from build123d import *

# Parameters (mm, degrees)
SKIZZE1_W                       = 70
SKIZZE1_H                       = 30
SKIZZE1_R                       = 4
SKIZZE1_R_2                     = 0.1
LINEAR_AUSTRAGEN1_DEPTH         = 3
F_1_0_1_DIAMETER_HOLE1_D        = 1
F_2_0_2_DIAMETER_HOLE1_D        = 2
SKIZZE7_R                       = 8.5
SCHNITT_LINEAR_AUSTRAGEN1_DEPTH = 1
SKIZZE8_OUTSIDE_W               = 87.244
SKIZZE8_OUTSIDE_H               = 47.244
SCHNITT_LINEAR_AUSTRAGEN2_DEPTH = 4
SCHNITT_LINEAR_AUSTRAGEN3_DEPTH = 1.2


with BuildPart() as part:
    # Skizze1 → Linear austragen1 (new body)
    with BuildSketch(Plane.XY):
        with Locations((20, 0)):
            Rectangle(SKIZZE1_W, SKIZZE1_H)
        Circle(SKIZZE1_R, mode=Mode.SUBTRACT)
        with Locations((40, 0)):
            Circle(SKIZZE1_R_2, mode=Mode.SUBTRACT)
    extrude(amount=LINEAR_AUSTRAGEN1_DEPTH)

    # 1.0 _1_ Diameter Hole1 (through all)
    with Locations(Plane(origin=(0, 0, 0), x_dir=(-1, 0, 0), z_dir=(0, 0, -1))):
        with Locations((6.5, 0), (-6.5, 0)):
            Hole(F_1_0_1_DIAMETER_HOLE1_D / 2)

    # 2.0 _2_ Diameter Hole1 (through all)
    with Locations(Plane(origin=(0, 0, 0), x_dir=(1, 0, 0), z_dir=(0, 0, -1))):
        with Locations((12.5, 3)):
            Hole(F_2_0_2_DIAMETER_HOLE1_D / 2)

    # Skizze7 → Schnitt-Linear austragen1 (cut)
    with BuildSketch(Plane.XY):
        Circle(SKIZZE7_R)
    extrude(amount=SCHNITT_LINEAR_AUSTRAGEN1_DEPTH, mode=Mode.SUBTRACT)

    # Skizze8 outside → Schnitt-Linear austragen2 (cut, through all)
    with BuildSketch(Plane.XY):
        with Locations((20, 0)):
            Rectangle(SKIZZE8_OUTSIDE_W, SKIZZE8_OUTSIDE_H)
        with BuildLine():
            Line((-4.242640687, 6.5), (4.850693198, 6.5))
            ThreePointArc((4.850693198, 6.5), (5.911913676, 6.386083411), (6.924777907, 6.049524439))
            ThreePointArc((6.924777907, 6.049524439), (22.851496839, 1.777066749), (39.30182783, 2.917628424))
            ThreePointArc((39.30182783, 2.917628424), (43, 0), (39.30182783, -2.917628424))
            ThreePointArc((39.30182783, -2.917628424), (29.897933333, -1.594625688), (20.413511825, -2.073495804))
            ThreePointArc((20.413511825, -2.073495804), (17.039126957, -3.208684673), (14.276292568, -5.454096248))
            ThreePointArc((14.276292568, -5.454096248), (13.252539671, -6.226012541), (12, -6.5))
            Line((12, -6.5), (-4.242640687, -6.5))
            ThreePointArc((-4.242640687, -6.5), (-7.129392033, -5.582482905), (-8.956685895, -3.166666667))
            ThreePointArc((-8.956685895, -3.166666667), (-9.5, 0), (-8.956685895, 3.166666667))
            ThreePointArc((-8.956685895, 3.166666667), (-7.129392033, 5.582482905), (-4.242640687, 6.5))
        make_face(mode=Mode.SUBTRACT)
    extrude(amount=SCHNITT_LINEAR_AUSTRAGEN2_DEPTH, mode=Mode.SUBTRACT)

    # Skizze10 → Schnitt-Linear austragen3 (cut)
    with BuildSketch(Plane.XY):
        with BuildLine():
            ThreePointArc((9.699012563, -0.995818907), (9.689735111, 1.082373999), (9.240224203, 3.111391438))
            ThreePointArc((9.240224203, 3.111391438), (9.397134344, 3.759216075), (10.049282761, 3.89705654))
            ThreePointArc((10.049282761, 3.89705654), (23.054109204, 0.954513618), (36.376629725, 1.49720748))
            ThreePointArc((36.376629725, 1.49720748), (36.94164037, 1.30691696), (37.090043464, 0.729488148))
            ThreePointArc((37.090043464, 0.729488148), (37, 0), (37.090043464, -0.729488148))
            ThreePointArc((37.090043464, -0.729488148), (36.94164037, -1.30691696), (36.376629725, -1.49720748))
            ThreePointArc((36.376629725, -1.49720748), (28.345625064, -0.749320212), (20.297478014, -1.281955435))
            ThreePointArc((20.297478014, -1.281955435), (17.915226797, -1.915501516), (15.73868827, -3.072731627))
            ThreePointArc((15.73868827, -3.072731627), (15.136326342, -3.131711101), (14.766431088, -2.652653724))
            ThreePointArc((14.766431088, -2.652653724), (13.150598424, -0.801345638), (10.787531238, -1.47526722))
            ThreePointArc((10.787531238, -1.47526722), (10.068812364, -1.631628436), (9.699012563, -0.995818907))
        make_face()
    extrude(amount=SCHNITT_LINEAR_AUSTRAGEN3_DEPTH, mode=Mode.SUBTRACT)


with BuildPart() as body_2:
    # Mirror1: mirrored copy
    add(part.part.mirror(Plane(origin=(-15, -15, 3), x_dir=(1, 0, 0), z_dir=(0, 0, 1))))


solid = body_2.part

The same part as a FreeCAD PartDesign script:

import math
import FreeCAD as App
import Part
import Sketcher
from FreeCAD import Vector

doc = App.newDocument("Part")
params = doc.addObject("Spreadsheet::Sheet", "Params")
for row, (alias, value) in enumerate([
    ("sketch1_diameter", "8 mm"),
    ("sketch1_diameter2", "0.2 mm"),
    ("sketch1_width", "70 mm"),
    ("sketch1_height", "30 mm"),
    ("pad1_length", "3 mm"),
    ("sketch2_diameter", "1 mm"),
    ("hole_diameter", "1 mm"),
    ("sketch3_diameter", "2 mm"),
    ("hole2_diameter", "2 mm"),
    ("sketch4_diameter", "17 mm"),
    ("pocket1_length", "1 mm"),
    ("sketch5_radius", "5 mm"),
    ("sketch5_radius2", "50 mm"),
    ("sketch5_radius3", "3 mm"),
    ("sketch5_radius4", "10 mm"),
    ("sketch5_radius5", "9.5 mm"),
    ("sketch6_radius", "3 mm"),
    ("sketch6_radius2", "10.8 mm"),
    ("sketch6_radius3", "50.8 mm"),
    ("sketch6_radius4", "50.8 mm"),
    ("sketch6_radius5", "9.75 mm"),
    ("pocket3_length", "1.2 mm"),
], start=1):
    params.set(f"A{row}", alias)
    params.set(f"B{row}", "=" + value)
    params.setAlias(f"B{row}", alias)

body = doc.addObject("PartDesign::Body", "Body")

sketch1 = body.newObject("Sketcher::SketchObject", "Sketch")
sketch1.AttachmentSupport = (doc.getObject("XY_Plane"), [""])
sketch1.MapMode = "FlatFace"
sketch1.addGeometry([
    Part.LineSegment(Vector(-15, 15, 0), Vector(-15, -15, 0)),
    Part.LineSegment(Vector(-15, -15, 0), Vector(55, -15, 0)),
    Part.LineSegment(Vector(55, -15, 0), Vector(55, 15, 0)),
    Part.LineSegment(Vector(55, 15, 0), Vector(-15, 15, 0)),
    Part.Circle(Vector(0, 0, 0), Vector(0, 0, 1), 4),
    Part.Circle(Vector(40, 0, 0), Vector(0, 0, 1), 0.1),
], False)
sketch1.addConstraint([
    Sketcher.Constraint("Coincident", 0, 2, 1, 1),
    Sketcher.Constraint("Coincident", 1, 2, 2, 1),
    Sketcher.Constraint("Coincident", 2, 2, 3, 1),
    Sketcher.Constraint("Coincident", 3, 2, 0, 1),
    Sketcher.Constraint("Vertical", 0),
    Sketcher.Constraint("Horizontal", 1),
    Sketcher.Constraint("Vertical", 2),
    Sketcher.Constraint("Horizontal", 3),
    Sketcher.Constraint("Coincident", 4, 3, -1, 1),
    Sketcher.Constraint("PointOnObject", 5, 3, -1),
    Sketcher.Constraint("Diameter", 4, 8.0),
    Sketcher.Constraint("Diameter", 5, 0.2),
    Sketcher.Constraint("DistanceX", 1, 1, 1, 2, 70.0),
    Sketcher.Constraint("DistanceY", 0, 2, 0, 1, 30.0),
    Sketcher.Constraint("DistanceX", -1, 1, 5, 3, 40.0),
    Sketcher.Constraint("DistanceX", 0, 2, -1, 1, 15.0),
    Sketcher.Constraint("DistanceY", 0, 2, -1, 1, 15.0),
])
sketch1.setExpression("Constraints[10]", "Params.sketch1_diameter")
sketch1.setExpression("Constraints[11]", "Params.sketch1_diameter2")
sketch1.setExpression("Constraints[12]", "Params.sketch1_width")
sketch1.setExpression("Constraints[13]", "Params.sketch1_height")
pad1 = body.newObject("PartDesign::Pad", "Pad")
pad1.Profile = sketch1
pad1.setExpression("Length", "Params.pad1_length")

sketch2 = body.newObject("Sketcher::SketchObject", "Sketch001")
sketch2.AttachmentSupport = (doc.getObject("XY_Plane"), [""])
sketch2.MapMode = "FlatFace"
sketch2.addGeometry([
    Part.Circle(Vector(-6.5, 0, 0), Vector(0, 0, 1), 0.5),
    Part.Circle(Vector(6.5, 0, 0), Vector(0, 0, 1), 0.5),
], False)
sketch2.addConstraint([
    Sketcher.Constraint("Equal", 0, 1),
    Sketcher.Constraint("Symmetric", 0, 3, 1, 3, -1, 1),
    Sketcher.Constraint("PointOnObject", 0, 3, -1),
    Sketcher.Constraint("Diameter", 0, 1.0),
    Sketcher.Constraint("DistanceX", 0, 3, 1, 3, 13.0),
])
sketch2.setExpression("Constraints[3]", "Params.sketch2_diameter")
doc.recompute()
hole = body.newObject("PartDesign::Hole", "Hole")
hole.Profile = sketch2
hole.ThreadType = "None"
hole.setExpression("Diameter", "Params.hole_diameter")
hole.DepthType = "ThroughAll"
hole.Reversed = True

sketch3 = body.newObject("Sketcher::SketchObject", "Sketch002")
sketch3.AttachmentSupport = (doc.getObject("XY_Plane"), [""])
sketch3.MapMode = "FlatFace"
sketch3.addGeometry(Part.Circle(Vector(12.5, -3, 0), Vector(0, 0, 1), 1), False)
sketch3.addConstraint([
    Sketcher.Constraint("Diameter", 0, 2.0),
    Sketcher.Constraint("DistanceY", 0, 3, -1, 1, 3.0),
    Sketcher.Constraint("DistanceX", -1, 1, 0, 3, 12.5),
])
sketch3.setExpression("Constraints[0]", "Params.sketch3_diameter")
doc.recompute()
hole2 = body.newObject("PartDesign::Hole", "Hole001")
hole2.Profile = sketch3
hole2.ThreadType = "None"
hole2.setExpression("Diameter", "Params.hole2_diameter")
hole2.DepthType = "ThroughAll"
hole2.Reversed = True

sketch4 = body.newObject("Sketcher::SketchObject", "Sketch003")
sketch4.AttachmentSupport = (doc.getObject("XY_Plane"), [""])
sketch4.MapMode = "FlatFace"
sketch4.addGeometry(Part.Circle(Vector(0, 0, 0), Vector(0, 0, 1), 8), False)
sketch4.addConstraint([
    Sketcher.Constraint("Coincident", 0, 3, -1, 1),
    Sketcher.Constraint("Diameter", 0, 17.0),
])
sketch4.setExpression("Constraints[1]", "Params.sketch4_diameter")
pocket1 = body.newObject("PartDesign::Pocket", "Pocket")
pocket1.Profile = sketch4
pocket1.setExpression("Length", "Params.pocket1_length")
pocket1.Reversed = True

sketch5 = body.newObject("Sketcher::SketchObject", "Sketch004")
sketch5.AttachmentSupport = (doc.getObject("XY_Plane"), [""])
sketch5.MapMode = "FlatFace"
sketch5.addGeometry([
    Part.LineSegment(Vector(-23.6, 23.6, 0), Vector(-23.6, -23.6, 0)),
    Part.LineSegment(Vector(-23.6, -23.6, 0), Vector(63.6, -23.6, 0)),
    Part.LineSegment(Vector(63.6, -23.6, 0), Vector(63.6, 23.6, 0)),
    Part.LineSegment(Vector(63.6, 23.6, 0), Vector(-23.6, 23.6, 0)),
    Part.ArcOfCircle(Part.Circle(Vector(-4.2, 1.5, 0), Vector(0, 0, 1), 5), math.radians(90), math.radians(161)),
    Part.LineSegment(Vector(-4.2, 6.5, 0), Vector(4.9, 6.5, 0)),
    Part.ArcOfCircle(Part.Circle(Vector(4.9, 1.5, 0), Vector(0, 0, 1), 5), math.radians(65), math.radians(90)),
    Part.ArcOfCircle(Part.Circle(Vector(27.7, 51.5, 0), Vector(0, 0, 1), 50), math.radians(-115), math.radians(-77)),
    Part.ArcOfCircle(Part.Circle(Vector(40, 0, 0), Vector(0, 0, 1), 3), math.radians(-103), math.radians(103)),
    Part.ArcOfCircle(Part.Circle(Vector(27.7, -51.5, 0), Vector(0, 0, 1), 50), math.radians(77), math.radians(98)),
    Part.ArcOfCircle(Part.Circle(Vector(21.9, -12, 0), Vector(0, 0, 1), 10), math.radians(98), math.radians(139)),
    Part.ArcOfCircle(Part.Circle(Vector(12, -3.5, 0), Vector(0, 0, 1), 3), math.radians(-90), math.radians(-41)),
    Part.LineSegment(Vector(12, -6.5, 0), Vector(-4.2, -6.5, 0)),
    Part.ArcOfCircle(Part.Circle(Vector(-4.2, -1.5, 0), Vector(0, 0, 1), 5), math.radians(-161), math.radians(-90)),
    Part.ArcOfCircle(Part.Circle(Vector(0, 0, 0), Vector(0, 0, 1), 9.5), math.radians(161), math.radians(199)),
], False)
sketch5.addConstraint([
    Sketcher.Constraint("Coincident", 0, 2, 1, 1),
    Sketcher.Constraint("Coincident", 1, 2, 2, 1),
    Sketcher.Constraint("Coincident", 2, 2, 3, 1),
    Sketcher.Constraint("Coincident", 3, 2, 0, 1),
    Sketcher.Constraint("Tangent", 4, 1, 5, 1),
    Sketcher.Constraint("Tangent", 5, 2, 6, 2),
    Sketcher.Constraint("Tangent", 6, 1, 7, 1),
    Sketcher.Constraint("Tangent", 7, 2, 8, 2),
    Sketcher.Constraint("Tangent", 8, 1, 9, 1),
    Sketcher.Constraint("Tangent", 9, 2, 10, 1),
    Sketcher.Constraint("Tangent", 10, 2, 11, 2),
    Sketcher.Constraint("Tangent", 11, 1, 12, 1),
    Sketcher.Constraint("Tangent", 12, 2, 13, 2),
    Sketcher.Constraint("Tangent", 13, 1, 14, 2),
    Sketcher.Constraint("Tangent", 14, 1, 4, 2),
    Sketcher.Constraint("Vertical", 0),
    Sketcher.Constraint("Horizontal", 1),
    Sketcher.Constraint("Vertical", 2),
    Sketcher.Constraint("Horizontal", 3),
    Sketcher.Constraint("Horizontal", 5),
    Sketcher.Constraint("Horizontal", 12),
    Sketcher.Constraint("Coincident", 14, 3, -1, 1),
    Sketcher.Constraint("Equal", 4, 6),
    Sketcher.Constraint("Equal", 7, 9),
    Sketcher.Constraint("Equal", 8, 11),
    Sketcher.Constraint("Equal", 6, 13),
    Sketcher.Constraint("Symmetric", 7, 3, 9, 3, -1),
    Sketcher.Constraint("Vertical", 4, 3, 13, 3),
    Sketcher.Constraint("Radius", 4, 5.0),
    Sketcher.Constraint("Radius", 7, 50.0),
    Sketcher.Constraint("Radius", 8, 3.0),
    Sketcher.Constraint("Radius", 10, 10.0),
    Sketcher.Constraint("Radius", 14, 9.5),
    Sketcher.Constraint("DistanceX", -1, 1, 8, 3, 40.0),
    Sketcher.Constraint("DistanceX", -1, 1, 11, 3, 12.0),
    Sketcher.Constraint("DistanceY", 11, 3, 6, 3, 5.0),
    Sketcher.Constraint("DistanceX", 1, 1, 1, 2, 87.244),
    Sketcher.Constraint("DistanceY", 0, 2, 0, 1, 47.244),
    Sketcher.Constraint("DistanceX", 0, 2, -1, 1, 23.622),
    Sketcher.Constraint("DistanceY", 0, 2, -1, 1, 23.622),
    Sketcher.Constraint("DistanceY", 10, 2, 9, 2, 3.3806),
])
sketch5.setExpression("Constraints[28]", "Params.sketch5_radius")
sketch5.setExpression("Constraints[29]", "Params.sketch5_radius2")
sketch5.setExpression("Constraints[30]", "Params.sketch5_radius3")
sketch5.setExpression("Constraints[31]", "Params.sketch5_radius4")
sketch5.setExpression("Constraints[32]", "Params.sketch5_radius5")
pocket2 = body.newObject("PartDesign::Pocket", "Pocket001")
pocket2.Profile = sketch5
pocket2.Type = "ThroughAll"
pocket2.Reversed = True

sketch6 = body.newObject("Sketcher::SketchObject", "Sketch005")
sketch6.AttachmentSupport = (doc.getObject("XY_Plane"), [""])
sketch6.MapMode = "FlatFace"
sketch6.addGeometry([
    Part.ArcOfCircle(Part.Circle(Vector(0, 0, 0), Vector(0, 0, 1), 9.75), math.radians(-5.862142), math.radians(18.609537)),
    Part.ArcOfCircle(Part.Circle(Vector(10.320744, -1.059653, 0), Vector(0, 0, 1), 0.625), math.radians(174.137858), math.radians(318.319053)),
    Part.ArcOfCircle(Part.Circle(Vector(12.5, -3, 0), Vector(0, 0, 1), 2.292893), math.radians(8.71318), math.radians(138.319053)),
    Part.ArcOfCircle(Part.Circle(Vector(15.384218, -2.557974, 0), Vector(0, 0, 1), 0.625), math.radians(-171.28682), math.radians(-55.448106)),
    Part.ArcOfCircle(Part.Circle(Vector(21.863934, -11.96775, 0), Vector(0, 0, 1), 10.8), math.radians(98.339727), math.radians(124.551893)),
    Part.ArcOfCircle(Part.Circle(Vector(27.665625, -51.544769, 0), Vector(0, 0, 1), 50.8), math.radians(80.126325), math.radians(98.339727)),
    Part.ArcOfCircle(Part.Circle(Vector(36.483803, -0.881465, 0), Vector(0, 0, 1), 0.625), math.radians(-99.873675), math.radians(14.073282)),
    Part.ArcOfCircle(Part.Circle(Vector(40, 0, 0), Vector(0, 0, 1), 3), math.radians(165.926718), math.radians(194.073282)),
    Part.ArcOfCircle(Part.Circle(Vector(36.483803, 0.881465, 0), Vector(0, 0, 1), 0.625), math.radians(-14.073282), math.radians(99.873675)),
    Part.ArcOfCircle(Part.Circle(Vector(27.665625, 51.544769, 0), Vector(0, 0, 1), 50.8), math.radians(-110.290393), math.radians(-80.126325)),
    Part.ArcOfCircle(Part.Circle(Vector(9.832546, 3.31084, 0), Vector(0, 0, 1), 0.625), math.radians(69.709607), math.radians(198.609537)),
], False)
sketch6.addConstraint([
    Sketcher.Constraint("Coincident", 0, 1, 1, 1),
    Sketcher.Constraint("Coincident", 1, 2, 2, 2),
    Sketcher.Constraint("Coincident", 2, 1, 3, 1),
    Sketcher.Constraint("Coincident", 3, 2, 4, 2),
    Sketcher.Constraint("Coincident", 4, 1, 5, 2),
    Sketcher.Constraint("Coincident", 5, 1, 6, 1),
    Sketcher.Constraint("Coincident", 6, 2, 7, 2),
    Sketcher.Constraint("Coincident", 7, 1, 8, 1),
    Sketcher.Constraint("Coincident", 8, 2, 9, 2),
    Sketcher.Constraint("Coincident", 9, 1, 10, 1),
    Sketcher.Constraint("Coincident", 10, 2, 0, 2),
    Sketcher.Constraint("Coincident", 0, 3, -1, 1),
    Sketcher.Constraint("PointOnObject", 7, 3, -1),
    Sketcher.Constraint("Radius", 7, 3.0),
    Sketcher.Constraint("Radius", 4, 10.8),
    Sketcher.Constraint("Radius", 5, 50.8),
    Sketcher.Constraint("Radius", 9, 50.8),
    Sketcher.Constraint("Radius", 0, 9.75),
    Sketcher.Constraint("DistanceY", 2, 3, -1, 1, 3.0),
    Sketcher.Constraint("DistanceX", -1, 1, 7, 3, 40.0),
    Sketcher.Constraint("Radius", 1, 0.625),
    Sketcher.Constraint("Radius", 3, 0.625),
    Sketcher.Constraint("Radius", 6, 0.625),
    Sketcher.Constraint("Radius", 8, 0.625),
    Sketcher.Constraint("Radius", 10, 0.625),
    Sketcher.Constraint("DistanceX", -1, 1, 2, 3, 12.5),
    Sketcher.Constraint("Radius", 2, 2.292893),
    Sketcher.Constraint("DistanceY", 2, 1, 1, 3, 1.593),
    Sketcher.Constraint("DistanceX", 1, 2, 2, 1, 3.9789),
    Sketcher.Constraint("DistanceY", 2, 1, 4, 1, 1.370698),
    Sketcher.Constraint("DistanceX", -1, 1, 3, 3, 15.384218),
    Sketcher.Constraint("DistanceY", 4, 3, -1, 1, 11.96775),
    Sketcher.Constraint("DistanceY", 5, 3, -1, 1, 51.544769),
    Sketcher.Constraint("DistanceY", -1, 1, 9, 3, 51.544769),
    Sketcher.Constraint("DistanceY", -1, 1, 10, 3, 3.31084),
    Sketcher.Constraint("DistanceY", 0, 1, -1, 1, 0.995819),
    Sketcher.Constraint("DistanceX", -1, 1, 3, 2, 15.738688),
    Sketcher.Constraint("DistanceX", -1, 1, 5, 1, 36.37663),
    Sketcher.Constraint("DistanceY", 6, 2, -1, 1, 0.729488),
    Sketcher.Constraint("DistanceY", -1, 1, 7, 1, 0.729488),
    Sketcher.Constraint("DistanceX", -1, 1, 8, 2, 36.37663),
    Sketcher.Constraint("DistanceY", -1, 1, 10, 2, 3.111391),
    Sketcher.Constraint("DistanceX", 0, 1, 9, 1, 0.35027),
])
sketch6.setExpression("Constraints[13]", "Params.sketch6_radius")
sketch6.setExpression("Constraints[14]", "Params.sketch6_radius2")
sketch6.setExpression("Constraints[15]", "Params.sketch6_radius3")
sketch6.setExpression("Constraints[16]", "Params.sketch6_radius4")
sketch6.setExpression("Constraints[17]", "Params.sketch6_radius5")
pocket3 = body.newObject("PartDesign::Pocket", "Pocket002")
pocket3.Profile = sketch6
pocket3.setExpression("Length", "Params.pocket3_length")
pocket3.Reversed = True
body2 = doc.addObject("PartDesign::Body", "Body001")
doc.recompute()

mirroring = doc.addObject("Part::Mirroring", "Mirroring")
mirroring.Source = body
mirroring.Base = Vector(-15, -15, 3)
mirroring.Normal = Vector(0, 0, 1)
body2.BaseFeature = mirroring
doc.recompute()
body.Visibility = False
mirroring.Visibility = False

doc.recompute()
